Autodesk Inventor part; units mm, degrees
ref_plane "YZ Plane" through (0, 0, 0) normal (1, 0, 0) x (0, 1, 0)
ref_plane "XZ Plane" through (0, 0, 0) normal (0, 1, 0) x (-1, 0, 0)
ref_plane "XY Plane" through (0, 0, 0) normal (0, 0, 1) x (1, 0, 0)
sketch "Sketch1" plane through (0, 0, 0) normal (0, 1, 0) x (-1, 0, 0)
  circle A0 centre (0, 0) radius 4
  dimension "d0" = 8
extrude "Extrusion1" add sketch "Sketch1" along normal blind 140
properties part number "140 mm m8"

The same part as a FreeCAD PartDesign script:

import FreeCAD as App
import Part
import Sketcher
from FreeCAD import Vector
Q = App.Units.Quantity

doc = App.newDocument("Part")
params = doc.addObject("Spreadsheet::Sheet", "Params")
for row, (alias, value) in enumerate([
    ("sketch1_diameter", "8 mm"),
    ("pad1_length", "140 mm"),
], start=1):
    params.set(f"A{row}", alias)
    params.set(f"B{row}", "=" + value)
    params.setAlias(f"B{row}", alias)

body = doc.addObject("PartDesign::Body", "Body")

# Sketch on XZ plane
sketch1 = body.newObject("Sketcher::SketchObject", "Sketch")
sketch1.AttachmentSupport = (doc.getObject("XZ_Plane"), [""])
sketch1.MapMode = "FlatFace"
sketch1.addGeometry(Part.Circle(Vector(0, 0, 0), Vector(0, 0, 1), 4), False)
sketch1.addConstraint([
    Sketcher.Constraint("Coincident", 0, 3, -1, 1),
    Sketcher.Constraint("Diameter", 0, Q("8 mm")),
])
sketch1.setExpression("Constraints[1]", "Params.sketch1_diameter")
pad1 = body.newObject("PartDesign::Pad", "Pad")
pad1.Profile = sketch1
pad1.setExpression("Length", "Params.pad1_length")
pad1.Reversed = True

doc.recompute()
